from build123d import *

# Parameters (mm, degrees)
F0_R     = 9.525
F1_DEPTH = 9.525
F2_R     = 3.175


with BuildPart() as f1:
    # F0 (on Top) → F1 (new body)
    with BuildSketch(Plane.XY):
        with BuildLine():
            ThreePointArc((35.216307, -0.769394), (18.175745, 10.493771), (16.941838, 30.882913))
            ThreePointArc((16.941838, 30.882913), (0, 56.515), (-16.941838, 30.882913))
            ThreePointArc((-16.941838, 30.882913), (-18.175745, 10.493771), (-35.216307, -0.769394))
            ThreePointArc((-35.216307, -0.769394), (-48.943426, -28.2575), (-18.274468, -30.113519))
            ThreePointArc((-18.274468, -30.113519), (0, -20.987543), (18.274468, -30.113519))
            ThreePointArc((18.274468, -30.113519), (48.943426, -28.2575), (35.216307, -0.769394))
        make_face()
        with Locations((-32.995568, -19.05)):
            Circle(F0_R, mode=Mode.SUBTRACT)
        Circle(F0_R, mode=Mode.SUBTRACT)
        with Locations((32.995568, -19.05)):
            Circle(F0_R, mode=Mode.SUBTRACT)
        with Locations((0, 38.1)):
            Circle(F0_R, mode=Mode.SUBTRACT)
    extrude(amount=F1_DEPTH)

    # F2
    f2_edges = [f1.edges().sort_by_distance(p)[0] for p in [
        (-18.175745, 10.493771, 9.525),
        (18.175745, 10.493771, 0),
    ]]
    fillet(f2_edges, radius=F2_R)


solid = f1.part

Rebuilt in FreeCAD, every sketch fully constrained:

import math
import FreeCAD as App
import Part
import Sketcher

V = App.Vector
Q = App.Units.Quantity


def edges_at(feature, points):
    """Names of the edges that pass closest to the given points."""
    edges = feature.Shape.Edges
    near = lambda p: min(range(len(edges)), key=lambda i: edges[i].distToShape(Part.Vertex(*p))[0])
    return sorted({f"Edge{near(p) + 1}" for p in points})

doc = App.newDocument("Part")
body = doc.addObject("PartDesign::Body", "Body")

sketch1 = body.newObject("Sketcher::SketchObject", "Sketch")
sketch1.AttachmentSupport = (doc.getObject("XY_Plane"), [""])
sketch1.MapMode = "FlatFace"
sketch1.addGeometry(Part.ArcOfCircle(Part.Circle(V(37.973085, 21.923771, 0), V(0, 0, 1), 22.859999), math.radians(156.926386), math.radians(263.073617)), False)
sketch1.addGeometry(Part.ArcOfCircle(Part.Circle(V(0, 38.1, 0), V(0, 0, 1), 18.415), math.radians(-23.073616), math.radians(203.073616)), False)
sketch1.addGeometry(Part.ArcOfCircle(Part.Circle(V(-37.973085, 21.923771, 0), V(0, 0, 1), 22.859999), math.radians(-83.073617), math.radians(23.073614)), False)
sketch1.addGeometry(Part.ArcOfCircle(Part.Circle(V(-32.995568, -19.05, 0), V(0, 0, 1), 18.415), math.radians(96.926387), math.radians(323.073615)), False)
sketch1.addGeometry(Part.ArcOfCircle(Part.Circle(V(0, -43.847543, 0), V(0, 0, 1), 22.86), math.radians(36.926387), math.radians(143.073613)), False)
sketch1.addGeometry(Part.ArcOfCircle(Part.Circle(V(32.995568, -19.05, 0), V(0, 0, 1), 18.415), math.radians(-143.073615), math.radians(83.073613)), False)
sketch1.addGeometry(Part.Circle(V(-32.995568, -19.05, 0), V(0, 0, 1), 9.525), False)
sketch1.addGeometry(Part.Circle(V(32.995568, -19.05, 0), V(0, 0, 1), 9.525), False)
sketch1.addGeometry(Part.Circle(V(0, 0, 0), V(0, 0, 1), 9.525), False)
sketch1.addGeometry(Part.Circle(V(0, 38.1, 0), V(0, 0, 1), 9.525), False)
sketch1.addConstraint(Sketcher.Constraint("Tangent", 0, 1, 1, 1))
sketch1.addConstraint(Sketcher.Constraint("Tangent", 1, 2, 2, 2))
sketch1.addConstraint(Sketcher.Constraint("Tangent", 2, 1, 3, 1))
sketch1.addConstraint(Sketcher.Constraint("Tangent", 3, 2, 4, 2))
sketch1.addConstraint(Sketcher.Constraint("Tangent", 4, 1, 5, 1))
sketch1.addConstraint(Sketcher.Constraint("Tangent", 5, 2, 0, 2))
sketch1.addConstraint(Sketcher.Constraint("Coincident", 8, 3, -1, 1))
sketch1.addConstraint(Sketcher.Constraint("Coincident", 6, 3, 3, 3))
sketch1.addConstraint(Sketcher.Constraint("Coincident", 7, 3, 5, 3))
sketch1.addConstraint(Sketcher.Constraint("Coincident", 9, 3, 1, 3))
sketch1.addConstraint(Sketcher.Constraint("Equal", 0, 2))
sketch1.addConstraint(Sketcher.Constraint("Equal", 1, 3))
sketch1.addConstraint(Sketcher.Constraint("Equal", 2, 4))
sketch1.addConstraint(Sketcher.Constraint("Equal", 3, 5))
sketch1.addConstraint(Sketcher.Constraint("Equal", 6, 7))
sketch1.addConstraint(Sketcher.Constraint("Equal", 7, 8))
sketch1.addConstraint(Sketcher.Constraint("Equal", 8, 9))
sketch1.addConstraint(Sketcher.Constraint("Symmetric", 0, 3, 2, 3, -2))
sketch1.addConstraint(Sketcher.Constraint("PointOnObject", 4, 3, -2))
sketch1.addConstraint(Sketcher.Constraint("Radius", 0, Q("0.9 in")))
sketch1.addConstraint(Sketcher.Constraint("Diameter", 6, Q("0.75 in")))
sketch1.addConstraint(Sketcher.Constraint("Radius", 1, Q("0.725 in")))
sketch1.addConstraint(Sketcher.Constraint("DistanceY", -1, 1, 1, 3, Q("1.5 in")))
sketch1.addConstraint(Sketcher.Constraint("DistanceY", 3, 3, -1, 1, Q("0.75 in")))
sketch1.addConstraint(Sketcher.Constraint("DistanceX", 3, 3, 3, 2, Q("14.7211 mm")))
pad1 = body.newObject("PartDesign::Pad", "Pad")
pad1.Profile = sketch1
pad1.Length = Q("0.375 in")
doc.recompute()

fillet = body.newObject("PartDesign::Fillet", "Fillet")
fillet.Base = (pad1, edges_at(pad1, [(-18.176, 10.494, 9.525), (18.176, 10.494, 0)]))
fillet.Radius = Q("0.125 in")

doc.recompute()
